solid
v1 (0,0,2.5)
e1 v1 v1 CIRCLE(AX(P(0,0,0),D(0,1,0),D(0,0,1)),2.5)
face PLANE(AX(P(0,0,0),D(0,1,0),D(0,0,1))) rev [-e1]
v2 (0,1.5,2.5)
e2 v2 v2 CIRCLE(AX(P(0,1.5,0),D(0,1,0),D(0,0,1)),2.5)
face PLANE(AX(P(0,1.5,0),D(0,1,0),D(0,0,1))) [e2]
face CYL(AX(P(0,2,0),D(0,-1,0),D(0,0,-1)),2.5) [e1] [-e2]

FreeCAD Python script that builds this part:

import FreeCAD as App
import Part
import Sketcher
Q = App.Units.Quantity

doc = App.newDocument("Part")
body = doc.addObject("PartDesign::Body", "Body")

# Sketch on XZ plane
sketch1 = doc.addObject("Sketcher::SketchObject", "Sketch")
body.addObject(sketch1)
sketch1.AttachmentSupport = (doc.XZ_Plane, [""])
sketch1.MapMode = "FlatFace"
sketch1.addGeometry(Part.Circle(App.Vector(0, 0, 0), App.Vector(0, 0, 1), 2.5), False)
sketch1.addConstraint([
    Sketcher.Constraint("Coincident", 0, 3, -1, 1),
    Sketcher.Constraint("Diameter", 0, Q("5 mm")),
])
pad1 = doc.addObject("PartDesign::Pad", "Pad")
body.addObject(pad1)
pad1.Profile = sketch1
pad1.Length = 2
pad1.Reversed = True

# Sketch on XZ plane
sketch2 = doc.addObject("Sketcher::SketchObject", "Sketch001")
body.addObject(sketch2)
sketch2.AttachmentSupport = (doc.XZ_Plane, [""])
sketch2.MapMode = "FlatFace"
sketch2.AttachmentOffset = App.Placement(App.Vector(0, 0, -2), App.Rotation())
sketch2.addGeometry(Part.Circle(App.Vector(0, 0, 0), App.Vector(0, 0, 1), 2.5), False)
sketch2.addConstraint([
    Sketcher.Constraint("Coincident", 0, 3, -1, 1),
    Sketcher.Constraint("Diameter", 0, Q("5 mm")),
])
pad2 = doc.addObject("PartDesign::Pad", "Pad001")
body.addObject(pad2)
pad2.Profile = sketch2
pad2.Length = 0.5
pad2.Reversed = True

# Sketch on XZ plane
sketch3 = doc.addObject("Sketcher::SketchObject", "Sketch002")
body.addObject(sketch3)
sketch3.AttachmentSupport = (doc.XZ_Plane, [""])
sketch3.MapMode = "FlatFace"
sketch3.AttachmentOffset = App.Placement(App.Vector(0, 0, -2.5), App.Rotation())
sketch3.addGeometry(Part.Circle(App.Vector(0, 0, 0), App.Vector(0, 0, 1), 2.5), False)
sketch3.addConstraint([
    Sketcher.Constraint("Coincident", 0, 3, -1, 1),
    Sketcher.Constraint("Diameter", 0, Q("5 mm")),
])
pocket1 = doc.addObject("PartDesign::Pocket", "Pocket")
body.addObject(pocket1)
pocket1.Profile = sketch3
pocket1.Length = 1
pocket1.Reversed = True

doc.recompute()
